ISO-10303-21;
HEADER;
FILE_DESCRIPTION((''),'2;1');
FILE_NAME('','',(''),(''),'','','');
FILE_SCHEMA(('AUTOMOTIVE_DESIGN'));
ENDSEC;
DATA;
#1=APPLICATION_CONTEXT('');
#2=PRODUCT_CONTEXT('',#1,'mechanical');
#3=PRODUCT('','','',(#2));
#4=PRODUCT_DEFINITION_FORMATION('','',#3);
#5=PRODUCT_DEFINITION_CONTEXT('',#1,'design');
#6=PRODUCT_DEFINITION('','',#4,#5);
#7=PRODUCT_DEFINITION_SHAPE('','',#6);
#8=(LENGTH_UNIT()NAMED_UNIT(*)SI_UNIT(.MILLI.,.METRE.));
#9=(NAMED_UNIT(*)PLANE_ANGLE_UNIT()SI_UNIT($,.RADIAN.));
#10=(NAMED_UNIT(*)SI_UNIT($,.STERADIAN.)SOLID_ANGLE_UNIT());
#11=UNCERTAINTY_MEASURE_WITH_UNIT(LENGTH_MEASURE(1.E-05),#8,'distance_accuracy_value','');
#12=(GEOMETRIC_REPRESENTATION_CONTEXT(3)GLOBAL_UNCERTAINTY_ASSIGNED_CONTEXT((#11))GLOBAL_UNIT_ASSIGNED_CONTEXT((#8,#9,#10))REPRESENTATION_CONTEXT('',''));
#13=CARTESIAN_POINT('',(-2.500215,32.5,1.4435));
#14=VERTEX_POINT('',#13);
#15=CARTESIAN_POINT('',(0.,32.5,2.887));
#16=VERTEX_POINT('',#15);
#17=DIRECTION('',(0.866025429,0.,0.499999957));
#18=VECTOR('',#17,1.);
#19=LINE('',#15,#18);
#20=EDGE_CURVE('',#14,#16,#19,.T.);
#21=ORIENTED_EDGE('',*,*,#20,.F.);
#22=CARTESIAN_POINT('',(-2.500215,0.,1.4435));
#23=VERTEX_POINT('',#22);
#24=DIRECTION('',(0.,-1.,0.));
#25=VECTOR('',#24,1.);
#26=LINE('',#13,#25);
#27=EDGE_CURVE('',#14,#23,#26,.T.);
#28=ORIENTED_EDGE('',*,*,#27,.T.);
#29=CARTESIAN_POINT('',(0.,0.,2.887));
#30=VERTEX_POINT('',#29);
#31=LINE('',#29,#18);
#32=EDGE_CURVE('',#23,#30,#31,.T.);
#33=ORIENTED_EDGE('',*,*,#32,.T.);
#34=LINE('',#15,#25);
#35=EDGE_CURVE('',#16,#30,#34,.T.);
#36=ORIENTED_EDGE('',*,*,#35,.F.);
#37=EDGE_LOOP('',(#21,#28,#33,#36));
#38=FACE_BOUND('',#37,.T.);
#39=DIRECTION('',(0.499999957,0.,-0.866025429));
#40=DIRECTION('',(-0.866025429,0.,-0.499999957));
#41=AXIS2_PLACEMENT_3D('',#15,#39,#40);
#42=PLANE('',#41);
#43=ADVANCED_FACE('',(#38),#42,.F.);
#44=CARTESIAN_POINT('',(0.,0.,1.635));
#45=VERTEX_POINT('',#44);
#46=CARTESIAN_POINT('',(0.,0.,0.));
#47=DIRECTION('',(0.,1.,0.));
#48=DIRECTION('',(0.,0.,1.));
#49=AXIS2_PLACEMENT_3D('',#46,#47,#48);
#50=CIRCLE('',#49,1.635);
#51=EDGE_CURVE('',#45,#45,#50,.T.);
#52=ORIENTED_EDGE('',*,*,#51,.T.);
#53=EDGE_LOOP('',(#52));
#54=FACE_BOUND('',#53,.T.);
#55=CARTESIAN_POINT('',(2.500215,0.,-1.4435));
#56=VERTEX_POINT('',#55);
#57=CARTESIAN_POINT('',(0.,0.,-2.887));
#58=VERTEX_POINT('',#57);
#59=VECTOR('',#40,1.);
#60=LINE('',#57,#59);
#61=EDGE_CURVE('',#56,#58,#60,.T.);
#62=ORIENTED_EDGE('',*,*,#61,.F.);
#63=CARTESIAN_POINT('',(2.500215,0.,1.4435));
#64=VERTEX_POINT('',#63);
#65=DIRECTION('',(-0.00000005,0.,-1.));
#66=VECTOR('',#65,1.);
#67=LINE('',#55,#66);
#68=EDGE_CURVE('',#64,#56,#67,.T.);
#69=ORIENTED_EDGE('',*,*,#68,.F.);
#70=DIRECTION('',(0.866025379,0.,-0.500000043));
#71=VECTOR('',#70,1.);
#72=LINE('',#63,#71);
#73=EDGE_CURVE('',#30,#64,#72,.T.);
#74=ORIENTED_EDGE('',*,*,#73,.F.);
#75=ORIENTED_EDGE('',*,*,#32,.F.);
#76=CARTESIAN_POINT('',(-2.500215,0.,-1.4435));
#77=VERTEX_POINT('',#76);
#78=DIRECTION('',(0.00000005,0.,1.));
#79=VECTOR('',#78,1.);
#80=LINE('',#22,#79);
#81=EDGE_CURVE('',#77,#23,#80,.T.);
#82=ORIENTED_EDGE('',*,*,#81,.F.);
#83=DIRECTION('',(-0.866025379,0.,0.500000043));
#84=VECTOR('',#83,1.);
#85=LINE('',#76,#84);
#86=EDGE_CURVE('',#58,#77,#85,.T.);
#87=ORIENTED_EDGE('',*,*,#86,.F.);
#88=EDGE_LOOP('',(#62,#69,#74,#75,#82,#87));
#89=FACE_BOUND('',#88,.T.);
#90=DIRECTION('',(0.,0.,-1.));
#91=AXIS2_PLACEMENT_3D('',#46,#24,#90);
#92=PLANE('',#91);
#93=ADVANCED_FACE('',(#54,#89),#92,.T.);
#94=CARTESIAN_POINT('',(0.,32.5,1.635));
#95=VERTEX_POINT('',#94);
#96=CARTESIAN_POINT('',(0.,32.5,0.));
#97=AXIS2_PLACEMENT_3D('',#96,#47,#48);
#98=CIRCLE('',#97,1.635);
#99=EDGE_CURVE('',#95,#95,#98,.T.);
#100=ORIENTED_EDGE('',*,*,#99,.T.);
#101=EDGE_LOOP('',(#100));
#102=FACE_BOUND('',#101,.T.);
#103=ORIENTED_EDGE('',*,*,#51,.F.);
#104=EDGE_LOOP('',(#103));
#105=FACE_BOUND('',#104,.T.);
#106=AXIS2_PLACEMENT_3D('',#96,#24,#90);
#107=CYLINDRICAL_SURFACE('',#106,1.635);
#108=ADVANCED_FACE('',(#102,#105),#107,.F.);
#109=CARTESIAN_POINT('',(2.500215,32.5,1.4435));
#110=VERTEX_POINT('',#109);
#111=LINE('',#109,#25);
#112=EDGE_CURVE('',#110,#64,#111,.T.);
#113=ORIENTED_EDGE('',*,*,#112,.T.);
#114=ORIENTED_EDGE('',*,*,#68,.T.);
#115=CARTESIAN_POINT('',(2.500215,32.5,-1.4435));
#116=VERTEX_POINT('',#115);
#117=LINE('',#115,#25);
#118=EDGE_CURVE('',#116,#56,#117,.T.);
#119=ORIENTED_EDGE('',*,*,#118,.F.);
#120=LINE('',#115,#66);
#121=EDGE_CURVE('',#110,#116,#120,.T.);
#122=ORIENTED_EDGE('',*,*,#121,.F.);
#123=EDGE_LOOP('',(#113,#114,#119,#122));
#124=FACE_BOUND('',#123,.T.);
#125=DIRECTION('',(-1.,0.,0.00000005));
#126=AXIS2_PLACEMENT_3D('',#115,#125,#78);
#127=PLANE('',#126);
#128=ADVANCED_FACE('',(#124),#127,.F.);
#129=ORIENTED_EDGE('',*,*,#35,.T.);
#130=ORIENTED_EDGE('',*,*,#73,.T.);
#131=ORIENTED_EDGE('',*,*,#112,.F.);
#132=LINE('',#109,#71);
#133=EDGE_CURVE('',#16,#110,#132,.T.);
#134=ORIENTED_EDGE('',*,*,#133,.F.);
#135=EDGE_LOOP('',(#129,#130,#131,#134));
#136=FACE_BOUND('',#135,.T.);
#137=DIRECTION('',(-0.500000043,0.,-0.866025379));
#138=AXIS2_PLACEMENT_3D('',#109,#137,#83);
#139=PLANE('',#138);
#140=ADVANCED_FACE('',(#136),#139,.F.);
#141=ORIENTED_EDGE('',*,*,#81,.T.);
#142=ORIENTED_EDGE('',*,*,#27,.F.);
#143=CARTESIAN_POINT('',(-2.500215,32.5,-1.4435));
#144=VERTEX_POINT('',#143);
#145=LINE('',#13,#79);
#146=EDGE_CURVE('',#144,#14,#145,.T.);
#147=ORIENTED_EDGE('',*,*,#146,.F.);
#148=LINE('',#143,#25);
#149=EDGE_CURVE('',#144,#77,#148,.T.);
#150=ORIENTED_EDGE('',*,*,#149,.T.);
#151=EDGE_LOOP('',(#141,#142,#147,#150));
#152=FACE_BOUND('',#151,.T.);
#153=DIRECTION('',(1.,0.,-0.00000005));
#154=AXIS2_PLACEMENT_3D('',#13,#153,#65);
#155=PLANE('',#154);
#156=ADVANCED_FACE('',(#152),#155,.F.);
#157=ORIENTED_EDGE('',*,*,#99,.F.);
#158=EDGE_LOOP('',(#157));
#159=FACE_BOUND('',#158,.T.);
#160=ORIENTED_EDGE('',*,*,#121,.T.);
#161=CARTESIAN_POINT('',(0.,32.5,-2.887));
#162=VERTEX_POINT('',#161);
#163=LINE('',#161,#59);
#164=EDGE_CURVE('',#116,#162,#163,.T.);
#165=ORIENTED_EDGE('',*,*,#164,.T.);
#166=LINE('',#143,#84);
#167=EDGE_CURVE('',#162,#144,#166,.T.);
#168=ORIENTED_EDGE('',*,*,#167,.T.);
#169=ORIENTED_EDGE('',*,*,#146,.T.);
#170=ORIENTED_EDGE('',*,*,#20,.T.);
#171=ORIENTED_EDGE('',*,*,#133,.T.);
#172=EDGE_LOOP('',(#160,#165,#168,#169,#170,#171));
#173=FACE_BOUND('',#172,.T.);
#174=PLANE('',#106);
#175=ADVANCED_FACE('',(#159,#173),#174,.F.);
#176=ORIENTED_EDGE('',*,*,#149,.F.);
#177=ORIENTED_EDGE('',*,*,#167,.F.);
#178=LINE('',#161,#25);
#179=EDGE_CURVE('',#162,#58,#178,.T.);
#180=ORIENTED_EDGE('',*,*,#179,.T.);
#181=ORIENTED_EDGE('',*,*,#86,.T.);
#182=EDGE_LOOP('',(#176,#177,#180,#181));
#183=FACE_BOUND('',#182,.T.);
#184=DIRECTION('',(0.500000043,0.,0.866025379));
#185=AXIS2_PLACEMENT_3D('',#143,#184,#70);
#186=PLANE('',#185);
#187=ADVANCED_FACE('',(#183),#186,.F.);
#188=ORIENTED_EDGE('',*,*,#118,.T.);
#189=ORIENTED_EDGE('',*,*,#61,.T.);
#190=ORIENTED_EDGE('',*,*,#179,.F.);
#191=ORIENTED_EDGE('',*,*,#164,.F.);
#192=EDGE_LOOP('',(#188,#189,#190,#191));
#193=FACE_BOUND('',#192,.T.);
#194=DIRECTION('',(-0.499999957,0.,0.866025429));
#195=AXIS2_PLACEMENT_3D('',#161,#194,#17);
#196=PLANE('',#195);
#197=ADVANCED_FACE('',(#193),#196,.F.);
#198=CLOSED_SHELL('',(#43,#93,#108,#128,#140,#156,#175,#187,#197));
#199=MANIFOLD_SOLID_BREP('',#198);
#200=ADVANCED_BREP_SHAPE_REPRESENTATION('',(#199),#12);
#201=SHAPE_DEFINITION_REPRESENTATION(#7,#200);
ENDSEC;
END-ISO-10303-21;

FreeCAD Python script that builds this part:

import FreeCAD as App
import Part
import Sketcher
Q = App.Units.Quantity

doc = App.newDocument("Part")
body = doc.addObject("PartDesign::Body", "Body")

# Sketch on XZ plane
sketch1 = body.newObject("Sketcher::SketchObject", "Sketch")
sketch1.AttachmentSupport = (doc.getObject("XZ_Plane"), [""])
sketch1.MapMode = "FlatFace"
sketch1.addGeometry([
    Part.LineSegment(App.Vector(2.5, 1.4, 0), App.Vector(2.5, -1.4, 0)),  # 0
    Part.LineSegment(App.Vector(2.5, -1.4, 0), App.Vector(0, -2.9, 0)),  # 1
    Part.LineSegment(App.Vector(0, -2.9, 0), App.Vector(-2.5, -1.4, 0)),  # 2
    Part.LineSegment(App.Vector(-2.5, -1.4, 0), App.Vector(-2.5, 1.4, 0)),  # 3
    Part.LineSegment(App.Vector(-2.5, 1.4, 0), App.Vector(0, 2.9, 0)),  # 4
    Part.LineSegment(App.Vector(0, 2.9, 0), App.Vector(2.5, 1.4, 0)),  # 5
    Part.Circle(App.Vector(0, 0, 0), App.Vector(0, 0, 1), 1.6),  # 6
], False)
sketch1.addConstraint([
    Sketcher.Constraint("Coincident", 0, 2, 1, 1),
    Sketcher.Constraint("Coincident", 1, 2, 2, 1),
    Sketcher.Constraint("Coincident", 2, 2, 3, 1),
    Sketcher.Constraint("Coincident", 3, 2, 4, 1),
    Sketcher.Constraint("Coincident", 4, 2, 5, 1),
    Sketcher.Constraint("Coincident", 5, 2, 0, 1),
    Sketcher.Constraint("Vertical", 0),
    Sketcher.Constraint("Vertical", 3),
    Sketcher.Constraint("Coincident", 6, 3, -1, 1),
    Sketcher.Constraint("Symmetric", 0, 2, 3, 2, -1, 1),
    Sketcher.Constraint("Symmetric", 1, 2, 4, 2, -1, 1),
    Sketcher.Constraint("PointOnObject", 1, 2, -2),
    Sketcher.Constraint("Parallel", 2, 5),
    Sketcher.Constraint("Horizontal", 0, 2, 2, 2),
    Sketcher.Constraint("Diameter", 6, Q("3.27 mm")),
    Sketcher.Constraint("Angle", 1, Q("-150.000003 deg")),
    Sketcher.Constraint("DistanceY", 0, 2, 0, 1, Q("2.887 mm")),
    Sketcher.Constraint("Distance", 1, Q("2.887 mm")),
])
pad1 = body.newObject("PartDesign::Pad", "Pad")
pad1.Profile = sketch1
pad1.Length = 32.5
pad1.Reversed = True

doc.recompute()
